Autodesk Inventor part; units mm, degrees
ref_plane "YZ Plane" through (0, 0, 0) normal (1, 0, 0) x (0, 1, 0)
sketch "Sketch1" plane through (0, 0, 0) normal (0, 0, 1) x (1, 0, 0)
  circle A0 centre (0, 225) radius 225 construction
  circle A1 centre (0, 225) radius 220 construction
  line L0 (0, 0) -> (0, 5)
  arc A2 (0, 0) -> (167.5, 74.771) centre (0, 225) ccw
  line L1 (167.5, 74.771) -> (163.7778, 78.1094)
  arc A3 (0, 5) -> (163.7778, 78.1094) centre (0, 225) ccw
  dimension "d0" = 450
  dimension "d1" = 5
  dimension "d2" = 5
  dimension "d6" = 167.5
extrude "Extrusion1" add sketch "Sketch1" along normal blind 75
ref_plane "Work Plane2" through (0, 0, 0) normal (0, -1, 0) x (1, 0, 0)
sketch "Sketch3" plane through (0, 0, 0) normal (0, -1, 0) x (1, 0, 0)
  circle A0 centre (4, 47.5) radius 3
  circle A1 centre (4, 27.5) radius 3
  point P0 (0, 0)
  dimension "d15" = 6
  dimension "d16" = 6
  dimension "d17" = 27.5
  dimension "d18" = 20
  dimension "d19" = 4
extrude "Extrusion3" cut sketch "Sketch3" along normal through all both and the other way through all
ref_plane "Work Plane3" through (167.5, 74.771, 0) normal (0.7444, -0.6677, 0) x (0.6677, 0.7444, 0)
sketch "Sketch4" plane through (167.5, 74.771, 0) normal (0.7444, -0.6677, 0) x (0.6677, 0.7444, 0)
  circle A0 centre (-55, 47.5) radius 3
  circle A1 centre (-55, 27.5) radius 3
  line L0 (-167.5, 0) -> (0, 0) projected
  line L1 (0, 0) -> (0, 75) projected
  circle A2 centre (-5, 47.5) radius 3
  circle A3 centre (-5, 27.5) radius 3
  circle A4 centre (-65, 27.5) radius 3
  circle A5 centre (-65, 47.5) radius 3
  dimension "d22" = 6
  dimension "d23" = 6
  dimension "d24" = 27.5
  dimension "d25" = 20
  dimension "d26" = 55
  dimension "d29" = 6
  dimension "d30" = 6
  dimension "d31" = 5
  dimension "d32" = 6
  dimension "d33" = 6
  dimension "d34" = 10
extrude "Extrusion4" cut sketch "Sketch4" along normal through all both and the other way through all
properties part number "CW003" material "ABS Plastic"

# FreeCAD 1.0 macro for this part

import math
import FreeCAD as App
import Part
import Sketcher

V = App.Vector

doc = App.newDocument("Part")
body = doc.addObject("PartDesign::Body", "Body")

# Sketch on XY plane
sketch1 = body.newObject("Sketcher::SketchObject", "Sketch")
sketch1.AttachmentSupport = (doc.getObject("XY_Plane"), [""])
sketch1.MapMode = "FlatFace"
sketch1.addGeometry(Part.LineSegment(V(0, 5, 0), V(0, 0, 0)), False)
sketch1.addGeometry(Part.ArcOfCircle(Part.Circle(V(0, 225, 0), V(0, 0, 1), 225), math.radians(-90), math.radians(-42)), False)
sketch1.addGeometry(Part.LineSegment(V(167.5, 74.8, 0), V(163.8, 78.1, 0)), False)
sketch1.addGeometry(Part.ArcOfCircle(Part.Circle(V(0, 225, 0), V(0, 0, 1), 220), math.radians(-90), math.radians(-42)), False)
sketch1.addConstraint(Sketcher.Constraint("Coincident", 0, 2, 1, 1))
sketch1.addConstraint(Sketcher.Constraint("Coincident", 1, 2, 2, 1))
sketch1.addConstraint(Sketcher.Constraint("Coincident", 2, 2, 3, 2))
sketch1.addConstraint(Sketcher.Constraint("Coincident", 3, 1, 0, 1))
sketch1.addConstraint(Sketcher.Constraint("Vertical", 0))
sketch1.addConstraint(Sketcher.Constraint("Coincident", 0, 2, -1, 1))
sketch1.addConstraint(Sketcher.Constraint("Coincident", 3, 3, 1, 3))
sketch1.addConstraint(Sketcher.Constraint("PointOnObject", 1, 3, -2))
sketch1.addConstraint(Sketcher.Constraint("Radius", 1, 225.0))
sketch1.addConstraint(Sketcher.Constraint("DistanceY", 0, 2, 0, 1, 5.0))
sketch1.addConstraint(Sketcher.Constraint("DistanceX", -1, 1, 1, 2, 167.5))
sketch1.addConstraint(Sketcher.Constraint("DistanceX", -1, 1, 2, 2, 163.7778))
pad1 = body.newObject("PartDesign::Pad", "Pad")
pad1.Profile = sketch1
pad1.Length = 75

# Sketch on XZ plane
sketch2 = body.newObject("Sketcher::SketchObject", "Sketch001")
sketch2.AttachmentSupport = (doc.getObject("XZ_Plane"), [""])
sketch2.MapMode = "FlatFace"
sketch2.addGeometry(Part.Circle(V(4, 47.5, 0), V(0, 0, 1), 3), False)
sketch2.addGeometry(Part.Circle(V(4, 27.5, 0), V(0, 0, 1), 3), False)
sketch2.addConstraint(Sketcher.Constraint("Equal", 0, 1))
sketch2.addConstraint(Sketcher.Constraint("Vertical", 0, 3, 1, 3))
sketch2.addConstraint(Sketcher.Constraint("Diameter", 0, 6.0))
sketch2.addConstraint(Sketcher.Constraint("DistanceX", -1, 1, 0, 3, 4.0))
sketch2.addConstraint(Sketcher.Constraint("DistanceY", 1, 3, 0, 3, 20.0))
sketch2.addConstraint(Sketcher.Constraint("DistanceY", -1, 1, 1, 3, 27.5))
pocket1 = body.newObject("PartDesign::Pocket", "Pocket")
pocket1.Profile = sketch2
pocket1.Type = "ThroughAll"
pocket1.Midplane = True

# Sketch on an angled plane
sketch3 = body.newObject("Sketcher::SketchObject", "Sketch002")
sketch3.Placement = App.Placement(V(167.5, 74.771, 0), App.Rotation(V(0.667715141, 0.74441688, 0), V(0, 0, 1.000000001), V(0.74441688, -0.667715141, 0), "ZXY"))
sketch3.addGeometry(Part.Circle(V(-55, 47.5, 0), V(0, 0, 1), 3), False)
sketch3.addGeometry(Part.Circle(V(-55, 27.5, 0), V(0, 0, 1), 3), False)
sketch3.addGeometry(Part.Circle(V(-5, 47.5, 0), V(0, 0, 1), 3), False)
sketch3.addGeometry(Part.Circle(V(-5, 27.5, 0), V(0, 0, 1), 3), False)
sketch3.addGeometry(Part.Circle(V(-65, 27.5, 0), V(0, 0, 1), 3), False)
sketch3.addGeometry(Part.Circle(V(-65, 47.5, 0), V(0, 0, 1), 3), False)
sketch3.addConstraint(Sketcher.Constraint("Equal", 0, 1))
sketch3.addConstraint(Sketcher.Constraint("Equal", 1, 2))
sketch3.addConstraint(Sketcher.Constraint("Equal", 2, 3))
sketch3.addConstraint(Sketcher.Constraint("Equal", 3, 4))
sketch3.addConstraint(Sketcher.Constraint("Equal", 4, 5))
sketch3.addConstraint(Sketcher.Constraint("Horizontal", 0, 3, 2, 3))
sketch3.addConstraint(Sketcher.Constraint("Horizontal", 1, 3, 3, 3))
sketch3.addConstraint(Sketcher.Constraint("Horizontal", 3, 3, 4, 3))
sketch3.addConstraint(Sketcher.Constraint("Horizontal", 2, 3, 5, 3))
sketch3.addConstraint(Sketcher.Constraint("Vertical", 0, 3, 1, 3))
sketch3.addConstraint(Sketcher.Constraint("Vertical", 2, 3, 3, 3))
sketch3.addConstraint(Sketcher.Constraint("Vertical", 4, 3, 5, 3))
sketch3.addConstraint(Sketcher.Constraint("Diameter", 0, 6.0))
sketch3.addConstraint(Sketcher.Constraint("DistanceX", 0, 3, -1, 1, 55.0))
sketch3.addConstraint(Sketcher.Constraint("DistanceX", 2, 3, -1, 1, 5.0))
sketch3.addConstraint(Sketcher.Constraint("DistanceY", 1, 3, 0, 3, 20.0))
sketch3.addConstraint(Sketcher.Constraint("DistanceX", 4, 3, 1, 3, 10.0))
sketch3.addConstraint(Sketcher.Constraint("DistanceY", -1, 1, 1, 3, 27.5))
pocket2 = body.newObject("PartDesign::Pocket", "Pocket001")
pocket2.Profile = sketch3
pocket2.Type = "ThroughAll"
pocket2.Midplane = True

doc.recompute()
